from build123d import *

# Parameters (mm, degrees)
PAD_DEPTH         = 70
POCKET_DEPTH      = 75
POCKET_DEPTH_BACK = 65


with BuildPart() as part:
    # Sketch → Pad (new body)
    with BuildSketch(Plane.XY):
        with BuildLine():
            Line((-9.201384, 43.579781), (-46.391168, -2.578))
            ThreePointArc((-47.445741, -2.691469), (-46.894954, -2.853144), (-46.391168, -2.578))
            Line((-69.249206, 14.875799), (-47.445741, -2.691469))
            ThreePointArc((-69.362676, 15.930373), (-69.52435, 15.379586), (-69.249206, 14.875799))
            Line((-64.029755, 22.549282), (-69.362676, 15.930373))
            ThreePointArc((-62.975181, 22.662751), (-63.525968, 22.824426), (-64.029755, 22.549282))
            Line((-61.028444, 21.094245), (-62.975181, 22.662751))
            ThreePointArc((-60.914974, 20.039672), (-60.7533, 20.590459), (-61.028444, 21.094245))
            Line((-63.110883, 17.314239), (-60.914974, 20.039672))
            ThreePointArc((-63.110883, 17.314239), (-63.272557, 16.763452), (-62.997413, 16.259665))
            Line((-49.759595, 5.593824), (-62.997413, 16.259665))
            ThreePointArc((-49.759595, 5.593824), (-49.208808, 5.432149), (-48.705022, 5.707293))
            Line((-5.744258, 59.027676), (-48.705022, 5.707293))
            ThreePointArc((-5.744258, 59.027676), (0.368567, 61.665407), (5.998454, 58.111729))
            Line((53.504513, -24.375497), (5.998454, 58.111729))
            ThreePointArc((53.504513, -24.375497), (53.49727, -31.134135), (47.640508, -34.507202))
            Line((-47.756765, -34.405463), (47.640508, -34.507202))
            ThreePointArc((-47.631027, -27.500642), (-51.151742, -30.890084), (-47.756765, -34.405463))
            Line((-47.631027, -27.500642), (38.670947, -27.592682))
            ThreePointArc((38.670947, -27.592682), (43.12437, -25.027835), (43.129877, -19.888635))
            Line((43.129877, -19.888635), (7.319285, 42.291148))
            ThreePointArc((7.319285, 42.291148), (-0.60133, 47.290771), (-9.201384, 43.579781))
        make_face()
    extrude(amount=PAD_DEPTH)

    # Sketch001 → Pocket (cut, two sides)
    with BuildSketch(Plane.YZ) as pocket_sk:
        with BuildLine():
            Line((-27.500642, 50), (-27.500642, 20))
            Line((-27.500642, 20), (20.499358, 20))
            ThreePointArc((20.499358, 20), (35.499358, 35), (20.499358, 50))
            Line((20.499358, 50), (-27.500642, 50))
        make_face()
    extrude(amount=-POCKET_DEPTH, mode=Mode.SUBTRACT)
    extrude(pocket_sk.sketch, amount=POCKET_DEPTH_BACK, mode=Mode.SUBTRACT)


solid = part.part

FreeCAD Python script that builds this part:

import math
import FreeCAD as App
import Part
import Sketcher

V = App.Vector

doc = App.newDocument("Part")
params = doc.addObject("Spreadsheet::Sheet", "Params")
for row, (alias, value) in enumerate([
    ("sketch1_radius", "0.749999 mm"),
    ("sketch1_radius2", "0.750002 mm"),
    ("sketch1_radius3", "0.75 mm"),
    ("sketch1_radius4", "0.75 mm"),
    ("sketch1_radius5", "0.750002 mm"),
    ("pad1_length", "70 mm"),
    ("sketch2_radius", "15 mm"),
    ("sketch2_width", "48 mm"),
], start=1):
    params.set(f"A{row}", alias)
    params.set(f"B{row}", "=" + value)
    params.setAlias(f"B{row}", alias)

body = doc.addObject("PartDesign::Body", "Body")

# Sketch on XY plane
sketch1 = body.newObject("Sketcher::SketchObject", "Sketch")
sketch1.AttachmentSupport = (doc.getObject("XY_Plane"), [""])
sketch1.MapMode = "FlatFace"
sketch1.addGeometry([
    Part.LineSegment(V(-46.391168, -2.578, 0), V(-9.201384, 43.579781, 0)),  # 0
    Part.ArcOfCircle(Part.Circle(V(-1.3822, 37.279785, 0), V(0, 0, 1), 10.041394), math.radians(29.938518), math.radians(141.141258)),  # 1
    Part.LineSegment(V(7.319285, 42.291148, 0), V(43.129877, -19.888635, 0)),  # 2
    Part.ArcOfCircle(Part.Circle(V(38.676427, -22.453466, 0), V(0, 0, 1), 5.139219), math.radians(-90.061096), math.radians(29.938499)),  # 3
    Part.LineSegment(V(38.670947, -27.592682, 0), V(-47.631027, -27.500642, 0)),  # 4
    Part.ArcOfCircle(Part.Circle(V(-47.699327, -30.952954, 0), V(0, 0, 1), 3.452987), math.radians(88.866613), math.radians(269.046885)),  # 5
    Part.LineSegment(V(-47.756765, -34.405463, 0), V(47.640508, -34.507202, 0)),  # 6
    Part.ArcOfCircle(Part.Circle(V(47.647715, -27.748543, 0), V(0, 0, 1), 6.758662), math.radians(-90.061101), math.radians(29.938497)),  # 7
    Part.LineSegment(V(53.504513, -24.375497, 0), V(5.998454, 58.111729, 0)),  # 8
    Part.ArcOfCircle(Part.Circle(V(-0.186467, 54.549707, 0), V(0, 0, 1), 7.137314), math.radians(29.938515), math.radians(141.141254)),  # 9
    Part.LineSegment(V(-5.744258, 59.027676, 0), V(-48.705022, 5.707293, 0)),  # 10
    Part.ArcOfCircle(Part.Circle(V(-49.289043, 6.177844, 0), V(0, 0, 1), 0.749999), math.radians(-128.858824), math.radians(-38.858709)),  # 11
    Part.LineSegment(V(-49.759595, 5.593824, 0), V(-62.997413, 16.259665, 0)),  # 12
    Part.ArcOfCircle(Part.Circle(V(-62.526859, 16.843687, 0), V(0, 0, 1), 0.750002), math.radians(141.141368), math.radians(231.141195)),  # 13
    Part.LineSegment(V(-63.110883, 17.314239, 0), V(-60.914974, 20.039672, 0)),  # 14
    Part.ArcOfCircle(Part.Circle(V(-61.498996, 20.510223, 0), V(0, 0, 1), 0.75), math.radians(-38.858675), math.radians(51.141249)),  # 15
    Part.LineSegment(V(-61.028444, 21.094245, 0), V(-62.975181, 22.662751, 0)),  # 16
    Part.ArcOfCircle(Part.Circle(V(-63.445734, 22.07873, 0), V(0, 0, 1), 0.75), math.radians(51.141218), math.radians(141.141237)),  # 17
    Part.LineSegment(V(-64.029755, 22.549282, 0), V(-69.362676, 15.930373, 0)),  # 18
    Part.ArcOfCircle(Part.Circle(V(-68.778652, 15.459821, 0), V(0, 0, 1), 0.750002), math.radians(141.141368), math.radians(231.141195)),  # 19
    Part.LineSegment(V(-69.249206, 14.875799, 0), V(-47.445741, -2.691469, 0)),  # 20
    Part.ArcOfCircle(Part.Circle(V(-46.975189, -2.107449, 0), V(0, 0, 1), 0.749999), math.radians(-128.858824), math.radians(-38.858709)),  # 21
], False)
sketch1.addConstraint([
    Sketcher.Constraint("Coincident", 0, 2, 1, 2),
    Sketcher.Constraint("Coincident", 1, 1, 2, 1),
    Sketcher.Constraint("Coincident", 2, 2, 3, 2),
    Sketcher.Constraint("Coincident", 3, 1, 4, 1),
    Sketcher.Constraint("Coincident", 4, 2, 5, 1),
    Sketcher.Constraint("Coincident", 5, 2, 6, 1),
    Sketcher.Constraint("Coincident", 6, 2, 7, 1),
    Sketcher.Constraint("Coincident", 7, 2, 8, 1),
    Sketcher.Constraint("Coincident", 8, 2, 9, 1),
    Sketcher.Constraint("Coincident", 9, 2, 10, 1),
    Sketcher.Constraint("Coincident", 10, 2, 11, 2),
    Sketcher.Constraint("Coincident", 11, 1, 12, 1),
    Sketcher.Constraint("Coincident", 12, 2, 13, 2),
    Sketcher.Constraint("Coincident", 13, 1, 14, 1),
    Sketcher.Constraint("Coincident", 14, 2, 15, 1),
    Sketcher.Constraint("Coincident", 15, 2, 16, 1),
    Sketcher.Constraint("Coincident", 16, 2, 17, 1),
    Sketcher.Constraint("Coincident", 17, 2, 18, 1),
    Sketcher.Constraint("Coincident", 18, 2, 19, 1),
    Sketcher.Constraint("Coincident", 19, 2, 20, 1),
    Sketcher.Constraint("Coincident", 20, 2, 21, 1),
    Sketcher.Constraint("Coincident", 21, 2, 0, 1),
    Sketcher.Constraint("Radius", 11, 0.749999),
    Sketcher.Constraint("Radius", 13, 0.750002),
    Sketcher.Constraint("Radius", 15, 0.75),
    Sketcher.Constraint("Radius", 17, 0.75),
    Sketcher.Constraint("Radius", 19, 0.750002),
    Sketcher.Constraint("Radius", 21, 0.749999),
    Sketcher.Constraint("Distance", 12, 17.0),
    Sketcher.Constraint("Distance", 20, 28.0),
    Sketcher.Constraint("Distance", 14, 3.5),
    Sketcher.Constraint("Distance", 16, 2.499999),
    Sketcher.Constraint("Distance", 18, 8.5),
    Sketcher.Constraint("Radius", 3, 5.139219),
    Sketcher.Constraint("DistanceY", 21, 2, -1, 1, 2.578),
    Sketcher.Constraint("Radius", 1, 10.041394),
    Sketcher.Constraint("Radius", 5, 3.452987),
    Sketcher.Constraint("Radius", 7, 6.758662),
    Sketcher.Constraint("Radius", 9, 7.137314),
    Sketcher.Constraint("DistanceX", 1, 3, -1, 1, 1.3822),
    Sketcher.Constraint("DistanceY", -1, 1, 19, 2, 14.875799),
    Sketcher.Constraint("DistanceY", 13, 3, 1, 3, 20.436098),
    Sketcher.Constraint("DistanceX", 5, 3, 4, 2, 0.0683),
    Sketcher.Constraint("DistanceX", 15, 3, 11, 1, 11.739401),
    Sketcher.Constraint("DistanceY", 11, 1, 15, 3, 14.916399),
    Sketcher.Constraint("DistanceX", 11, 3, 20, 2, 1.843302),
    Sketcher.Constraint("Distance", 2, 71.754609),
    Sketcher.Constraint("DistanceX", 13, 3, -1, 1, 62.526859),
    Sketcher.Constraint("DistanceY", -1, 1, 17, 3, 22.07873),
    Sketcher.Constraint("DistanceY", -1, 1, 19, 3, 15.459821),
    Sketcher.Constraint("DistanceX", 21, 3, -1, 1, 46.975189),
    Sketcher.Constraint("DistanceY", 21, 3, -1, 1, 2.107449),
    Sketcher.Constraint("DistanceY", -1, 1, 0, 2, 43.579781),
    Sketcher.Constraint("DistanceY", -1, 1, 1, 1, 42.291148),
    Sketcher.Constraint("DistanceY", 4, 2, -1, 1, 27.500642),
    Sketcher.Constraint("DistanceY", -1, 1, 8, 2, 58.111729),
    Sketcher.Constraint("DistanceX", 9, 2, -1, 1, 5.744258),
    Sketcher.Constraint("DistanceY", -1, 1, 13, 1, 17.314239),
    Sketcher.Constraint("DistanceY", -1, 1, 14, 2, 20.039672),
    Sketcher.Constraint("DistanceX", 16, 2, -1, 1, 62.975181),
    Sketcher.Constraint("DistanceY", -1, 1, 16, 2, 22.662751),
    Sketcher.Constraint("DistanceY", -1, 1, 17, 2, 22.549282),
    Sketcher.Constraint("DistanceX", 20, 2, -1, 1, 47.445741),
    Sketcher.Constraint("DistanceY", 3, 3, 1, 3, 59.733251),
    Sketcher.Constraint("DistanceY", 5, 3, 1, 3, 68.232739),
    Sketcher.Constraint("DistanceX", 3, 3, 7, 3, 8.971288),
    Sketcher.Constraint("DistanceY", 7, 3, 1, 3, 65.028329),
    Sketcher.Constraint("DistanceY", 1, 3, 9, 3, 17.269922),
    Sketcher.Constraint("DistanceX", 5, 3, 9, 3, 47.51286),
    Sketcher.Constraint("DistanceY", 11, 3, 1, 3, 31.101942),
    Sketcher.Constraint("DistanceX", 11, 3, 3, 3, 87.96547),
    Sketcher.Constraint("DistanceX", 15, 3, 5, 3, 13.799669),
    Sketcher.Constraint("DistanceX", 3, 1, 3, 3, 0.00548),
    Sketcher.Constraint("DistanceY", 5, 2, 5, 3, 3.452509),
    Sketcher.Constraint("DistanceX", 3, 1, 6, 2, 8.969561),
    Sketcher.Constraint("DistanceY", 7, 2, 2, 2, 4.486862),
    Sketcher.Constraint("DistanceX", 11, 3, 10, 2, 0.584021),
])
sketch1.setExpression("Constraints[22]", "Params.sketch1_radius")
sketch1.setExpression("Constraints[23]", "Params.sketch1_radius2")
sketch1.setExpression("Constraints[24]", "Params.sketch1_radius3")
sketch1.setExpression("Constraints[25]", "Params.sketch1_radius4")
sketch1.setExpression("Constraints[26]", "Params.sketch1_radius5")
pad1 = body.newObject("PartDesign::Pad", "Pad")
pad1.Profile = sketch1
pad1.setExpression("Length", "Params.pad1_length")

# Sketch on YZ plane
sketch2 = body.newObject("Sketcher::SketchObject", "Sketch001")
sketch2.AttachmentSupport = (doc.getObject("YZ_Plane"), [""])
sketch2.MapMode = "FlatFace"
sketch2.addGeometry([
    Part.LineSegment(V(-28, 50, 0), V(-28, 20, 0)),
    Part.LineSegment(V(-28, 20, 0), V(20, 20, 0)),
    Part.ArcOfCircle(Part.Circle(V(20, 35, 0), V(0, 0, 1), 15), math.radians(-90), math.radians(90)),
    Part.LineSegment(V(20, 50, 0), V(-28, 50, 0)),
], False)
sketch2.addConstraint([
    Sketcher.Constraint("Coincident", 0, 2, 1, 1),
    Sketcher.Constraint("Tangent", 1, 2, 2, 1),
    Sketcher.Constraint("Tangent", 2, 2, 3, 1),
    Sketcher.Constraint("Coincident", 3, 2, 0, 1),
    Sketcher.Constraint("Vertical", 0),
    Sketcher.Constraint("Horizontal", 1),
    Sketcher.Constraint("Horizontal", 3),
    Sketcher.Constraint("Radius", 2, 15.0),
    Sketcher.Constraint("DistanceX", 1, 1, 1, 2, 48.0),
    Sketcher.Constraint("DistanceY", -1, 1, 2, 3, 35.0),
    Sketcher.Constraint("DistanceX", -1, 1, 2, 3, 20.499358),
])
sketch2.setExpression("Constraints[7]", "Params.sketch2_radius")
sketch2.setExpression("Constraints[8]", "Params.sketch2_width")
pocket1 = body.newObject("PartDesign::Pocket", "Pocket")
pocket1.Profile = sketch2
pocket1.Type = "ThroughAll"
pocket1.Midplane = True

doc.recompute()
